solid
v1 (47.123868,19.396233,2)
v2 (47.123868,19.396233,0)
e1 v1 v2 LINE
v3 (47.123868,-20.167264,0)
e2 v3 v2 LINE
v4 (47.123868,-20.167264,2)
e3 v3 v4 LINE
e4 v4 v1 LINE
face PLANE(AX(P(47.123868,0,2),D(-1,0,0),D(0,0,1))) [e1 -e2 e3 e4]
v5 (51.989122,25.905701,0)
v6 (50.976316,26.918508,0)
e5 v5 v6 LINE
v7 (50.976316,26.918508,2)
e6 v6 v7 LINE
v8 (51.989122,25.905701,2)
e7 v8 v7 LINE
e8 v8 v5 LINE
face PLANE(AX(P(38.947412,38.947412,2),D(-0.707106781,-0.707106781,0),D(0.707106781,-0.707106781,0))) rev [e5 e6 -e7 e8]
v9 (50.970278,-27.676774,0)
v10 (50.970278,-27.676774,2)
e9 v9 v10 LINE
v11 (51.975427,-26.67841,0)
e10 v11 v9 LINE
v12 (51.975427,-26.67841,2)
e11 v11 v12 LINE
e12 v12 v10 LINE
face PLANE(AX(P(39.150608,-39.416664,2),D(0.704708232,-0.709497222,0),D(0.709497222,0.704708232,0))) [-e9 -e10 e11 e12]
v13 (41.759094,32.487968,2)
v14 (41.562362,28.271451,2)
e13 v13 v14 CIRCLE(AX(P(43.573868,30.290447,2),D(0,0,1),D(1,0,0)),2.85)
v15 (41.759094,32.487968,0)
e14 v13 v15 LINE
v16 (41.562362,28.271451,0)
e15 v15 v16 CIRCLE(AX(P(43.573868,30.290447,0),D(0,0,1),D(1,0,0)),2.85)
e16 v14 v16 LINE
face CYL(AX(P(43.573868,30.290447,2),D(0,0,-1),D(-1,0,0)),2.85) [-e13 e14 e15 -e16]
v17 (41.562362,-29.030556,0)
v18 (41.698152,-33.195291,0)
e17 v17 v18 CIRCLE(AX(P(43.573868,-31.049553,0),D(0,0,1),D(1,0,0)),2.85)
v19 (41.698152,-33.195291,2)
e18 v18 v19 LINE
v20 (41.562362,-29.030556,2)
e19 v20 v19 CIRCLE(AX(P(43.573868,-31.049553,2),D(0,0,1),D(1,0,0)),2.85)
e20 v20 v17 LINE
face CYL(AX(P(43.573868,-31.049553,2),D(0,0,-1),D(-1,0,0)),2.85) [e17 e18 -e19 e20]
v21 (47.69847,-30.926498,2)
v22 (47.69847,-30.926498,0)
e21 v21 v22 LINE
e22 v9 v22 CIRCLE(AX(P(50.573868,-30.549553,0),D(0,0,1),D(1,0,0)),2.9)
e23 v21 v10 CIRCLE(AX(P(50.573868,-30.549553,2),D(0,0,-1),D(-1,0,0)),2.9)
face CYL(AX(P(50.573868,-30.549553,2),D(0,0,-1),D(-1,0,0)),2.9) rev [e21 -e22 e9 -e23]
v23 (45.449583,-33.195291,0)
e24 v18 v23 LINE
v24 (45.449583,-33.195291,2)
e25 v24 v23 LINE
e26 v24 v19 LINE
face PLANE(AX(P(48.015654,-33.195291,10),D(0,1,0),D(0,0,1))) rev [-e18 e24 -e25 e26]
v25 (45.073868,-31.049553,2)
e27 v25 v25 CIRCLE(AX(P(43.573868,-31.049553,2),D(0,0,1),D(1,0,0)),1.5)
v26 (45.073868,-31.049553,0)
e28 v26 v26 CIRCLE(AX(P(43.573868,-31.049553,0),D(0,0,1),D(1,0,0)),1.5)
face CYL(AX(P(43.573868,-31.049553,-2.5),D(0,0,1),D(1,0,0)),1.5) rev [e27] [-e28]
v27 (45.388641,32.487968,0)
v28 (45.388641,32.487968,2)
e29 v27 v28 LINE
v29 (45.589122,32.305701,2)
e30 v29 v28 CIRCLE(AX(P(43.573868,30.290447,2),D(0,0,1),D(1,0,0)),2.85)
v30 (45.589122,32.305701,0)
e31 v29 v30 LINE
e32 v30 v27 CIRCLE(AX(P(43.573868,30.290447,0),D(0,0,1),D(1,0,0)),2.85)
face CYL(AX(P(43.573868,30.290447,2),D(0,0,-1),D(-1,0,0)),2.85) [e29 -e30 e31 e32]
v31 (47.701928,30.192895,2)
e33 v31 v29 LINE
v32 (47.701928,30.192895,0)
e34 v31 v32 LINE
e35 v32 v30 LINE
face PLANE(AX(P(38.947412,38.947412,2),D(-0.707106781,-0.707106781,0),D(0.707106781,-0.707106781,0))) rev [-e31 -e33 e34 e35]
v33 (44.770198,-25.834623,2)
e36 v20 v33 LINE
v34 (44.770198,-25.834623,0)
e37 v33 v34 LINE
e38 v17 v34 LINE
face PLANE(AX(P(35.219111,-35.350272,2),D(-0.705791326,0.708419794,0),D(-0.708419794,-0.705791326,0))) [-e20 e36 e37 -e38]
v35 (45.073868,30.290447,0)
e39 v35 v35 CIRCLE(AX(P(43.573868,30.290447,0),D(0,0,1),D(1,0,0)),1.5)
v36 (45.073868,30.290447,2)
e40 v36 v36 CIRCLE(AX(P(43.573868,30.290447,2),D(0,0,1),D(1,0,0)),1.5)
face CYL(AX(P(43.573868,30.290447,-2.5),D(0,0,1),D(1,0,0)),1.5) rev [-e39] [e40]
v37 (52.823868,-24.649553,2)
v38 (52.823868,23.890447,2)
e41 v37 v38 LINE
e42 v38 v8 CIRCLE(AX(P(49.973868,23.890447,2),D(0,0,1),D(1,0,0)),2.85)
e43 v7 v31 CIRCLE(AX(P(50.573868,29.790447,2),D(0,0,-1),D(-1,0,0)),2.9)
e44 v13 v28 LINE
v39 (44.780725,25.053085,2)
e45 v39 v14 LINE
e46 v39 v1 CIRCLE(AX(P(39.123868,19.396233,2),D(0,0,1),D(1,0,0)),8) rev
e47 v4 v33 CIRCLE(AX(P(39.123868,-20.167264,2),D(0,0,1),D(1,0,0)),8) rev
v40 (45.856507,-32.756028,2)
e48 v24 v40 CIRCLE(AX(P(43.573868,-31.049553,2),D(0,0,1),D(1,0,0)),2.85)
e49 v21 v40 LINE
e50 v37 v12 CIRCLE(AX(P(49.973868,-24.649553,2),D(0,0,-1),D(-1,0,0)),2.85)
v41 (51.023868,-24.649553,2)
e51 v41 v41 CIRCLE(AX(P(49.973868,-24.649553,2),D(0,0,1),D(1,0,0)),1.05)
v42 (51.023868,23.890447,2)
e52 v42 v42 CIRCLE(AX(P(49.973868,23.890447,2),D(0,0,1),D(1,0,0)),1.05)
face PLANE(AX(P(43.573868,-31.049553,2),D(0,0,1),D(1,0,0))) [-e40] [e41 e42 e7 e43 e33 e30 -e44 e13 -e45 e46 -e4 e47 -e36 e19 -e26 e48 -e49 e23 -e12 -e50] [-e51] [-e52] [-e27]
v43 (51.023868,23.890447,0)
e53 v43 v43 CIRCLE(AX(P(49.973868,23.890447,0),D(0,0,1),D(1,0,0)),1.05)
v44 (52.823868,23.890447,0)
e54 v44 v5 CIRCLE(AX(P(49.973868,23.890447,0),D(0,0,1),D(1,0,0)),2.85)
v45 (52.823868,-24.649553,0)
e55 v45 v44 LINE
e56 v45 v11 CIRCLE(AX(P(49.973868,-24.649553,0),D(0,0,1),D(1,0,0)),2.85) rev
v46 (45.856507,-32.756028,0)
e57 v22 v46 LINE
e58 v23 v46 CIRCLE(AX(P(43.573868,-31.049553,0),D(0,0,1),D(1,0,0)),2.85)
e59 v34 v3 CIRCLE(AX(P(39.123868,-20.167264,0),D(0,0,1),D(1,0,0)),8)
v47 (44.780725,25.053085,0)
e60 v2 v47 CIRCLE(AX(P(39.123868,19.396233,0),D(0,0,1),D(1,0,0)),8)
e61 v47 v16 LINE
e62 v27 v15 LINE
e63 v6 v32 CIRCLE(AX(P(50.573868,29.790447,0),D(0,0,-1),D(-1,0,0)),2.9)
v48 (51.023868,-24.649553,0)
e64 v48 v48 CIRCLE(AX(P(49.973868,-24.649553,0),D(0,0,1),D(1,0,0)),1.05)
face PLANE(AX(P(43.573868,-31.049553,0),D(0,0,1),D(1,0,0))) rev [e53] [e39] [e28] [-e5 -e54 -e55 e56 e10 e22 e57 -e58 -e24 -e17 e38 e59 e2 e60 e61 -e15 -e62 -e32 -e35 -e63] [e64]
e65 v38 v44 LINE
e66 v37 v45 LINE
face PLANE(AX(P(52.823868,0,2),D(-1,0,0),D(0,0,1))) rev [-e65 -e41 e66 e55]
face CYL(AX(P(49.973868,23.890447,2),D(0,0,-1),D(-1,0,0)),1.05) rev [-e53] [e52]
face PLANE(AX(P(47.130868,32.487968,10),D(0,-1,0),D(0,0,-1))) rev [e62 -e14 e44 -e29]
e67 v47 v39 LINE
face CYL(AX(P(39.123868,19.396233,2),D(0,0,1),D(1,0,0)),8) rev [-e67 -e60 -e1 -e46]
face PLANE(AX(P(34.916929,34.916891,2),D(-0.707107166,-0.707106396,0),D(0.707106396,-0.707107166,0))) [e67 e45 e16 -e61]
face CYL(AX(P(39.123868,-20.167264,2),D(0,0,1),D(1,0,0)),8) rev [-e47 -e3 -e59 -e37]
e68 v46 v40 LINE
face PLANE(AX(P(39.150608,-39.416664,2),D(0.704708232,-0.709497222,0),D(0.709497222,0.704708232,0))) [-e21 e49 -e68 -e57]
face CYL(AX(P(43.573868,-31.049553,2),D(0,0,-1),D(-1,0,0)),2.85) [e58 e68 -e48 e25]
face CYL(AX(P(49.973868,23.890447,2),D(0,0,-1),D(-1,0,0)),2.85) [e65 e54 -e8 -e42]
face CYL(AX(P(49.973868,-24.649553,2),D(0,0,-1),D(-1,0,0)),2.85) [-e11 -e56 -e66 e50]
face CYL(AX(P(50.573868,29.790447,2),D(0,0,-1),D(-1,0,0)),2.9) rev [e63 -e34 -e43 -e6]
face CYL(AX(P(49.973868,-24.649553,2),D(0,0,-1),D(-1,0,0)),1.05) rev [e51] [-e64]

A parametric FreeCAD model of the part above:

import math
import FreeCAD as App
import Part
import Sketcher
from FreeCAD import Vector
Q = App.Units.Quantity


def edges_at(feature, points):
    """Names of the edges that pass closest to the given points."""
    edges = feature.Shape.Edges
    near = lambda p: min(range(len(edges)), key=lambda i: edges[i].distToShape(Part.Vertex(*p))[0])
    return sorted({f"Edge{near(p) + 1}" for p in points})

doc = App.newDocument("Part")
body = doc.addObject("PartDesign::Body", "Body")

# Sketch on XY plane
sketch1 = body.newObject("Sketcher::SketchObject", "Sketch")
sketch1.AttachmentSupport = (doc.getObject("XY_Plane"), [""])
sketch1.MapMode = "FlatFace"
sketch1.addGeometry(Part.Circle(Vector(43.6, -31, 0), Vector(0, 0, 1), 2.9), False)
sketch1.addGeometry(Part.Circle(Vector(43.6, -31, 0), Vector(0, 0, 1), 1.1), False)
sketch1.addConstraint(Sketcher.Constraint("Coincident", 1, 3, 0, 3))
sketch1.addConstraint(Sketcher.Constraint("Diameter", 0, 5.7))
sketch1.addConstraint(Sketcher.Constraint("Diameter", 1, 2.1))
sketch1.addConstraint(Sketcher.Constraint("DistanceX", -1, 1, 0, 3, 43.573868))
sketch1.addConstraint(Sketcher.Constraint("DistanceY", 0, 3, -1, 1, 31.049553))
pad1 = body.newObject("PartDesign::Pad", "Pad")
pad1.Profile = sketch1
pad1.Length = 2
body2 = doc.addObject("PartDesign::Body", "Body001")

# Sketch on XY plane
sketch2 = body2.newObject("Sketcher::SketchObject", "Sketch001")
sketch2.AttachmentSupport = (doc.getObject("XY_Plane001"), [""])
sketch2.MapMode = "FlatFace"
sketch2.addGeometry(Part.Circle(Vector(50, -24.6, 0), Vector(0, 0, 1), 2.9), False)
sketch2.addGeometry(Part.Circle(Vector(50, -24.6, 0), Vector(0, 0, 1), 1.1), False)
sketch2.addConstraint(Sketcher.Constraint("Coincident", 1, 3, 0, 3))
sketch2.addConstraint(Sketcher.Constraint("Diameter", 0, 5.7))
sketch2.addConstraint(Sketcher.Constraint("Diameter", 1, 2.1))
sketch2.addConstraint(Sketcher.Constraint("DistanceX", -1, 1, 0, 3, 49.973868))
sketch2.addConstraint(Sketcher.Constraint("DistanceY", 0, 3, -1, 1, 24.649553))
pad2 = body2.newObject("PartDesign::Pad", "Pad001")
pad2.Profile = sketch2
pad2.Length = 2
body3 = doc.addObject("PartDesign::Body", "Body002")

# Sketch on XY plane
sketch3 = body3.newObject("Sketcher::SketchObject", "Sketch002")
sketch3.AttachmentSupport = (doc.getObject("XY_Plane002"), [""])
sketch3.MapMode = "FlatFace"
sketch3.addGeometry(Part.Circle(Vector(50, 23.9, 0), Vector(0, 0, 1), 2.9), False)
sketch3.addGeometry(Part.Circle(Vector(50, 23.9, 0), Vector(0, 0, 1), 1.1), False)
sketch3.addConstraint(Sketcher.Constraint("Coincident", 1, 3, 0, 3))
sketch3.addConstraint(Sketcher.Constraint("Diameter", 0, 5.7))
sketch3.addConstraint(Sketcher.Constraint("Diameter", 1, 2.1))
sketch3.addConstraint(Sketcher.Constraint("DistanceX", -1, 1, 0, 3, 49.973868))
sketch3.addConstraint(Sketcher.Constraint("DistanceY", -1, 1, 0, 3, 23.890447))
pad3 = body3.newObject("PartDesign::Pad", "Pad002")
pad3.Profile = sketch3
pad3.Length = 2
body4 = doc.addObject("PartDesign::Body", "Body003")

# Sketch on XY plane
sketch4 = body4.newObject("Sketcher::SketchObject", "Sketch003")
sketch4.AttachmentSupport = (doc.getObject("XY_Plane003"), [""])
sketch4.MapMode = "FlatFace"
sketch4.addGeometry(Part.Circle(Vector(43.6, 30.3, 0), Vector(0, 0, 1), 2.9), False)
sketch4.addGeometry(Part.Circle(Vector(43.6, 30.3, 0), Vector(0, 0, 1), 1.1), False)
sketch4.addConstraint(Sketcher.Constraint("Coincident", 1, 3, 0, 3))
sketch4.addConstraint(Sketcher.Constraint("Diameter", 0, 5.7))
sketch4.addConstraint(Sketcher.Constraint("Diameter", 1, 2.1))
sketch4.addConstraint(Sketcher.Constraint("DistanceX", -1, 1, 0, 3, 43.573868))
sketch4.addConstraint(Sketcher.Constraint("DistanceY", -1, 1, 0, 3, 30.290447))
pad4 = body4.newObject("PartDesign::Pad", "Pad003")
pad4.Profile = sketch4
pad4.Length = 2
body.AllowCompound = True
doc.recompute()

boolean = body.newObject("PartDesign::Boolean", "Boolean")
boolean.Type = "Fuse"
boolean.addObjects([body2])
doc.recompute()

boolean2 = body.newObject("PartDesign::Boolean", "Boolean001")
boolean2.Type = "Fuse"
boolean2.addObjects([body3])
doc.recompute()

boolean3 = body.newObject("PartDesign::Boolean", "Boolean002")
boolean3.Type = "Fuse"
boolean3.addObjects([body4])

# Sketch on XY plane
sketch5 = body.newObject("Sketcher::SketchObject", "Sketch004")
sketch5.AttachmentSupport = (doc.getObject("XY_Plane"), [""])
sketch5.MapMode = "FlatFace"
sketch5.addGeometry(Part.LineSegment(Vector(41.6, -29, 0), Vector(47.1, -23.5, 0)), False)
sketch5.addGeometry(Part.LineSegment(Vector(47.1, -23.5, 0), Vector(47.1, 22.7, 0)), False)
sketch5.addGeometry(Part.LineSegment(Vector(47.1, 22.7, 0), Vector(41.6, 28.3, 0)), False)
sketch5.addGeometry(Part.LineSegment(Vector(41.6, 28.3, 0), Vector(44.9, 28.7, 0)), False)
sketch5.addGeometry(Part.LineSegment(Vector(44.9, 28.7, 0), Vector(45.6, 32.3, 0)), False)
sketch5.addGeometry(Part.LineSegment(Vector(45.6, 32.3, 0), Vector(52, 25.9, 0)), False)
sketch5.addGeometry(Part.ArcOfCircle(Part.Circle(Vector(50, 23.9, 0), Vector(0, 0, 1), 2.9), math.radians(45), math.radians(180)), False)
sketch5.addGeometry(Part.ArcOfCircle(Part.Circle(Vector(50, 23.9, 0), Vector(0, 0, 1), 2.8), math.radians(180), math.radians(225)), False)
sketch5.addGeometry(Part.ArcOfCircle(Part.Circle(Vector(50, 23.9, 0), Vector(0, 0, 1), 2.9), math.radians(-135), math.radians(0)), False)
sketch5.addGeometry(Part.LineSegment(Vector(52.8, 23.9, 0), Vector(52.8, -24.6, 0)), False)
sketch5.addGeometry(Part.LineSegment(Vector(52.8, -24.6, 0), Vector(50.2, -22.8, 0)), False)
sketch5.addGeometry(Part.LineSegment(Vector(50.2, -22.8, 0), Vector(47.1, -24.6, 0)), False)
sketch5.addGeometry(Part.LineSegment(Vector(47.1, -24.6, 0), Vector(48.6, -26.1, 0)), False)
sketch5.addGeometry(Part.LineSegment(Vector(48.6, -26.1, 0), Vector(52, -26.7, 0)), False)
sketch5.addGeometry(Part.LineSegment(Vector(52, -26.7, 0), Vector(45.3, -33.3, 0)), False)
sketch5.addGeometry(Part.LineSegment(Vector(45.3, -33.3, 0), Vector(44.9, -29.8, 0)), False)
sketch5.addGeometry(Part.LineSegment(Vector(44.9, -29.8, 0), Vector(41.6, -29, 0)), False)
sketch5.addConstraint(Sketcher.Constraint("Coincident", 0, 2, 1, 1))
sketch5.addConstraint(Sketcher.Constraint("Coincident", 1, 2, 2, 1))
sketch5.addConstraint(Sketcher.Constraint("Coincident", 2, 2, 3, 1))
sketch5.addConstraint(Sketcher.Constraint("Coincident", 3, 2, 4, 1))
sketch5.addConstraint(Sketcher.Constraint("Coincident", 4, 2, 5, 1))
sketch5.addConstraint(Sketcher.Constraint("Tangent", 5, 2, 6, 1))
sketch5.addConstraint(Sketcher.Constraint("Tangent", 6, 2, 7, 1))
sketch5.addConstraint(Sketcher.Constraint("Tangent", 7, 2, 8, 1))
sketch5.addConstraint(Sketcher.Constraint("Tangent", 8, 2, 9, 1))
sketch5.addConstraint(Sketcher.Constraint("Coincident", 9, 2, 10, 1))
sketch5.addConstraint(Sketcher.Constraint("Coincident", 10, 2, 11, 1))
sketch5.addConstraint(Sketcher.Constraint("Coincident", 11, 2, 12, 1))
sketch5.addConstraint(Sketcher.Constraint("Coincident", 12, 2, 13, 1))
sketch5.addConstraint(Sketcher.Constraint("Coincident", 13, 2, 14, 1))
sketch5.addConstraint(Sketcher.Constraint("Coincident", 14, 2, 15, 1))
sketch5.addConstraint(Sketcher.Constraint("Coincident", 15, 2, 16, 1))
sketch5.addConstraint(Sketcher.Constraint("Coincident", 16, 2, 0, 1))
sketch5.addConstraint(Sketcher.Constraint("Vertical", 1))
sketch5.addConstraint(Sketcher.Constraint("Vertical", 9))
sketch5.addConstraint(Sketcher.Constraint("Coincident", 8, 3, 6, 3))
sketch5.addConstraint(Sketcher.Constraint("Parallel", 2, 5))
sketch5.addConstraint(Sketcher.Constraint("Horizontal", 8, 3, 6, 2))
sketch5.addConstraint(Sketcher.Constraint("Horizontal", 9, 2, 11, 2))
sketch5.addConstraint(Sketcher.Constraint("Vertical", 1, 2, 6, 2))
sketch5.addConstraint(Sketcher.Constraint("Vertical", 6, 2, 11, 2))
sketch5.addConstraint(Sketcher.Constraint("Vertical", 5, 2, 13, 2))
sketch5.addConstraint(Sketcher.Constraint("Vertical", 3, 2, 15, 2))
sketch5.addConstraint(Sketcher.Constraint("Vertical", 2, 2, 16, 2))
sketch5.addConstraint(Sketcher.Constraint("Angle", 5, Q("-45 deg")))
sketch5.addConstraint(Sketcher.Constraint("Radius", 6, 2.85))
sketch5.addConstraint(Sketcher.Constraint("DistanceY", 9, 2, 9, 1, 48.54))
sketch5.addConstraint(Sketcher.Constraint("DistanceY", -1, 1, 4, 2, 32.305701))
sketch5.addConstraint(Sketcher.Constraint("DistanceY", -1, 1, 5, 2, 25.905701))
sketch5.addConstraint(Sketcher.Constraint("DistanceY", 7, 3, 3, 2, 4.7636))
sketch5.addConstraint(Sketcher.Constraint("DistanceX", 11, 2, 12, 2, 1.469398))
sketch5.addConstraint(Sketcher.Constraint("Distance", 0, 7.850579))
sketch5.addConstraint(Sketcher.Constraint("Distance", 2, 7.86516))
sketch5.addConstraint(Sketcher.Constraint("Distance", 4, 3.71907))
sketch5.addConstraint(Sketcher.Constraint("Distance", 11, 3.556808))
sketch5.addConstraint(Sketcher.Constraint("Distance", 12, 2.087308))
sketch5.addConstraint(Sketcher.Constraint("DistanceY", 1, 1, 1, 2, 46.199626))
sketch5.addConstraint(Sketcher.Constraint("DistanceY", -1, 1, 1, 2, 22.709939))
sketch5.addConstraint(Sketcher.Constraint("DistanceX", -1, 1, 3, 2, 44.884209))
sketch5.addConstraint(Sketcher.Constraint("DistanceX", -1, 1, 10, 2, 50.178692))
sketch5.addConstraint(Sketcher.Constraint("DistanceY", 15, 2, -1, 1, 29.808372))
sketch5.addConstraint(Sketcher.Constraint("DistanceX", 7, 2, 10, 2, 2.22008))
sketch5.addConstraint(Sketcher.Constraint("DistanceY", 13, 2, 12, 2, 0.532782))
sketch5.addConstraint(Sketcher.Constraint("DistanceX", 14, 2, 12, 2, 3.328422))
sketch5.addConstraint(Sketcher.Constraint("DistanceY", 14, 2, 12, 2, 7.211672))
pad5 = body.newObject("PartDesign::Pad", "Pad004")
pad5.Profile = sketch5
pad5.Length = 2

# Sketch on XY plane
sketch6 = body.newObject("Sketcher::SketchObject", "Sketch005")
sketch6.AttachmentSupport = (doc.getObject("XY_Plane"), [""])
sketch6.MapMode = "FlatFace"
sketch6.addGeometry(Part.Circle(Vector(50.6, 29.8, 0), Vector(0, 0, 1), 2.9), False)
sketch6.addGeometry(Part.Circle(Vector(50.6, -30.5, 0), Vector(0, 0, 1), 2.9), False)
sketch6.addConstraint(Sketcher.Constraint("Equal", 0, 1))
sketch6.addConstraint(Sketcher.Constraint("Vertical", 0, 3, 1, 3))
sketch6.addConstraint(Sketcher.Constraint("Diameter", 0, 5.8))
sketch6.addConstraint(Sketcher.Constraint("DistanceY", 1, 3, 0, 3, 60.34))
sketch6.addConstraint(Sketcher.Constraint("DistanceX", -1, 1, 0, 3, 50.573868))
sketch6.addConstraint(Sketcher.Constraint("DistanceY", -1, 1, 0, 3, 29.790447))
pocket1 = body.newObject("PartDesign::Pocket", "Pocket")
pocket1.Profile = sketch6
pocket1.Length = 2
pocket1.Reversed = True

# Sketch on XY plane
sketch7 = body.newObject("Sketcher::SketchObject", "Sketch006")
sketch7.AttachmentSupport = (doc.getObject("XY_Plane"), [""])
sketch7.MapMode = "FlatFace"
sketch7.AttachmentOffset = App.Placement(Vector(0, 0, 2), App.Rotation())
sketch7.addGeometry(Part.Circle(Vector(43.6, -31, 0), Vector(0, 0, 1), 1.5), False)
sketch7.addGeometry(Part.Circle(Vector(43.6, 30.3, 0), Vector(0, 0, 1), 1.5), False)
sketch7.addConstraint(Sketcher.Constraint("Equal", 0, 1))
sketch7.addConstraint(Sketcher.Constraint("Vertical", 0, 3, 1, 3))
sketch7.addConstraint(Sketcher.Constraint("Diameter", 0, 3.0))
sketch7.addConstraint(Sketcher.Constraint("DistanceY", 0, 3, 1, 3, 61.34))
sketch7.addConstraint(Sketcher.Constraint("DistanceX", -1, 1, 0, 3, 43.573868))
sketch7.addConstraint(Sketcher.Constraint("DistanceY", 0, 3, -1, 1, 31.049553))
pocket2 = body.newObject("PartDesign::Pocket", "Pocket001")
pocket2.Profile = sketch7
pocket2.Length = 4.5
doc.recompute()

fillet = body.newObject("PartDesign::Fillet", "Fillet")
fillet.Base = (pocket2, edges_at(pocket2, [(47.124, 22.71, 1)]))
fillet.Radius = 8
doc.recompute()

fillet2 = body.newObject("PartDesign::Fillet", "Fillet001")
fillet2.Base = (fillet, edges_at(fillet, [(47.124, -23.49, 1)]))
fillet2.Radius = 8

# Sketch on XY plane
sketch8 = body.newObject("Sketcher::SketchObject", "Sketch007")
sketch8.AttachmentSupport = (doc.getObject("XY_Plane"), [""])
sketch8.MapMode = "FlatFace"
sketch8.addGeometry(Part.LineSegment(Vector(47.1, 34.9, 0), Vector(47.1, 32.5, 0)), False)
sketch8.addGeometry(Part.LineSegment(Vector(47.1, 32.5, 0), Vector(38.8, 32.5, 0)), False)
sketch8.addGeometry(Part.LineSegment(Vector(38.8, 32.5, 0), Vector(38.8, 34.9, 0)), False)
sketch8.addGeometry(Part.LineSegment(Vector(38.8, 34.9, 0), Vector(47.1, 34.9, 0)), False)
sketch8.addGeometry(Part.LineSegment(Vector(48, -33.2, 0), Vector(48, -36.3, 0)), False)
sketch8.addGeometry(Part.LineSegment(Vector(48, -36.3, 0), Vector(39.3, -36.3, 0)), False)
sketch8.addGeometry(Part.LineSegment(Vector(39.3, -36.3, 0), Vector(39.3, -33.2, 0)), False)
sketch8.addGeometry(Part.LineSegment(Vector(39.3, -33.2, 0), Vector(48, -33.2, 0)), False)
sketch8.addConstraint(Sketcher.Constraint("Coincident", 0, 2, 1, 1))
sketch8.addConstraint(Sketcher.Constraint("Coincident", 1, 2, 2, 1))
sketch8.addConstraint(Sketcher.Constraint("Coincident", 2, 2, 3, 1))
sketch8.addConstraint(Sketcher.Constraint("Coincident", 3, 2, 0, 1))
sketch8.addConstraint(Sketcher.Constraint("Coincident", 4, 2, 5, 1))
sketch8.addConstraint(Sketcher.Constraint("Coincident", 5, 2, 6, 1))
sketch8.addConstraint(Sketcher.Constraint("Coincident", 6, 2, 7, 1))
sketch8.addConstraint(Sketcher.Constraint("Coincident", 7, 2, 4, 1))
sketch8.addConstraint(Sketcher.Constraint("Vertical", 0))
sketch8.addConstraint(Sketcher.Constraint("Horizontal", 1))
sketch8.addConstraint(Sketcher.Constraint("Vertical", 2))
sketch8.addConstraint(Sketcher.Constraint("Horizontal", 3))
sketch8.addConstraint(Sketcher.Constraint("Vertical", 4))
sketch8.addConstraint(Sketcher.Constraint("Horizontal", 5))
sketch8.addConstraint(Sketcher.Constraint("Vertical", 6))
sketch8.addConstraint(Sketcher.Constraint("Horizontal", 7))
sketch8.addConstraint(Sketcher.Constraint("DistanceX", 1, 2, 1, 1, 8.364299))
sketch8.addConstraint(Sketcher.Constraint("DistanceX", 5, 2, 5, 1, 8.747209))
sketch8.addConstraint(Sketcher.Constraint("DistanceY", 0, 2, 0, 1, 2.396021))
sketch8.addConstraint(Sketcher.Constraint("DistanceY", 4, 2, 4, 1, 3.084568))
sketch8.addConstraint(Sketcher.Constraint("DistanceX", -1, 1, 1, 2, 38.766569))
sketch8.addConstraint(Sketcher.Constraint("DistanceY", -1, 1, 2, 2, 34.883989))
sketch8.addConstraint(Sketcher.Constraint("DistanceY", 4, 2, -1, 1, 36.279859))
sketch8.addConstraint(Sketcher.Constraint("DistanceX", -1, 1, 4, 2, 48.015654))
pocket3 = body.newObject("PartDesign::Pocket", "Pocket002")
pocket3.Profile = sketch8
pocket3.Length = 10
pocket3.Reversed = True

doc.recompute()
